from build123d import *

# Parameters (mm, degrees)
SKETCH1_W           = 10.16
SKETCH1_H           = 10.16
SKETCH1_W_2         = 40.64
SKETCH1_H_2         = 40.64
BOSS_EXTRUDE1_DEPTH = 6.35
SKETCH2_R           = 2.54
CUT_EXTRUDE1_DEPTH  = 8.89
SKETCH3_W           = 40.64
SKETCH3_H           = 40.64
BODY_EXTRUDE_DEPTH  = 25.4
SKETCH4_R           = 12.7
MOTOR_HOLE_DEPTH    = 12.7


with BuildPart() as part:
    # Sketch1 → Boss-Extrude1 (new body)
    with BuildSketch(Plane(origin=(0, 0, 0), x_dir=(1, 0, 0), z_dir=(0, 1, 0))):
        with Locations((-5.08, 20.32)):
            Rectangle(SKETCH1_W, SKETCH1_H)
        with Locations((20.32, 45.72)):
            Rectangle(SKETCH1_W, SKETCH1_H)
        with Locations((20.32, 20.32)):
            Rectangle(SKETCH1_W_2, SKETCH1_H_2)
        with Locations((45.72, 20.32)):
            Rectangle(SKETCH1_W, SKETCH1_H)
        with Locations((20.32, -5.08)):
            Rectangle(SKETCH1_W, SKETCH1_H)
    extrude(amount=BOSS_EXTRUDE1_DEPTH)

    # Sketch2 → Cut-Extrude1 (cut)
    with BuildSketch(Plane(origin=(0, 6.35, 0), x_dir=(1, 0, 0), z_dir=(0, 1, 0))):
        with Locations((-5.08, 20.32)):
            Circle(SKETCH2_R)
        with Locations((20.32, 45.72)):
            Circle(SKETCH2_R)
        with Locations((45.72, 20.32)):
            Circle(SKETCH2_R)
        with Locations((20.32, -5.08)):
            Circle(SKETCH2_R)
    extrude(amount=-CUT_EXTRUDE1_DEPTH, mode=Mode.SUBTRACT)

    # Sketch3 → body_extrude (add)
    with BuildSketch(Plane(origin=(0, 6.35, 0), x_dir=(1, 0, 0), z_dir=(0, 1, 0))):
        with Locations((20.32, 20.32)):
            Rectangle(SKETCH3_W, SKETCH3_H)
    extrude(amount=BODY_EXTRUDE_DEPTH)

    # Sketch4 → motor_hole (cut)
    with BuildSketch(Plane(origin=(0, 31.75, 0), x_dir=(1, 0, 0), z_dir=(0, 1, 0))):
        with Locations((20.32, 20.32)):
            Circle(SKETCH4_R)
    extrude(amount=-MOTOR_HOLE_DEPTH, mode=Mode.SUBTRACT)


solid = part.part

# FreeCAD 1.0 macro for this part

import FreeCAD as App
import Part
import Sketcher
from FreeCAD import Vector
Q = App.Units.Quantity


def add_polygon(sketch, points):
    """Adds a closed chain of lines whose ends are joined by coincident constraints."""
    first, n = sketch.GeometryCount, len(points)
    for a, b in zip(points, points[1:] + points[:1]):
        sketch.addGeometry(Part.LineSegment(App.Vector(*a, 0), App.Vector(*b, 0)), False)
    for i in range(n):
        sketch.addConstraint(Sketcher.Constraint("Coincident", first + i, 2, first + (i + 1) % n, 1))

doc = App.newDocument("Part")
body = doc.addObject("PartDesign::Body", "Body")

sketch1 = body.newObject("Sketcher::SketchObject", "Sketch")
sketch1.AttachmentSupport = (doc.getObject("XZ_Plane"), [""])
sketch1.MapMode = "FlatFace"
add_polygon(sketch1, [(-10.16, -25.4), (-10.16, -15.24), (0, -15.24), (0, 0), (15.24, 0), (15.24, 10.16), (25.4, 10.16), (25.4, 0), (40.64, 0), (40.64, -15.24), (50.8, -15.24), (50.8, -25.4), (40.64, -25.4), (40.64, -40.64), (25.4, -40.64), (25.4, -50.8), (15.24, -50.8), (15.24, -40.64), (0, -40.64), (0, -25.4)])
sketch1.addConstraint(Sketcher.Constraint("Vertical", 0))
sketch1.addConstraint(Sketcher.Constraint("Horizontal", 1))
sketch1.addConstraint(Sketcher.Constraint("Vertical", 2))
sketch1.addConstraint(Sketcher.Constraint("Horizontal", 3))
sketch1.addConstraint(Sketcher.Constraint("Vertical", 4))
sketch1.addConstraint(Sketcher.Constraint("Horizontal", 5))
sketch1.addConstraint(Sketcher.Constraint("Vertical", 6))
sketch1.addConstraint(Sketcher.Constraint("Horizontal", 7))
sketch1.addConstraint(Sketcher.Constraint("Vertical", 8))
sketch1.addConstraint(Sketcher.Constraint("Horizontal", 9))
sketch1.addConstraint(Sketcher.Constraint("Vertical", 10))
sketch1.addConstraint(Sketcher.Constraint("Horizontal", 11))
sketch1.addConstraint(Sketcher.Constraint("Vertical", 12))
sketch1.addConstraint(Sketcher.Constraint("Horizontal", 13))
sketch1.addConstraint(Sketcher.Constraint("Vertical", 14))
sketch1.addConstraint(Sketcher.Constraint("Horizontal", 15))
sketch1.addConstraint(Sketcher.Constraint("Vertical", 16))
sketch1.addConstraint(Sketcher.Constraint("Horizontal", 17))
sketch1.addConstraint(Sketcher.Constraint("Vertical", 18))
sketch1.addConstraint(Sketcher.Constraint("Horizontal", 19))
sketch1.addConstraint(Sketcher.Constraint("Coincident", 2, 2, -1, 1))
sketch1.addConstraint(Sketcher.Constraint("PointOnObject", 6, 2, -1))
sketch1.addConstraint(Sketcher.Constraint("PointOnObject", 17, 2, -2))
sketch1.addConstraint(Sketcher.Constraint("Horizontal", 1, 2, 8, 2))
sketch1.addConstraint(Sketcher.Constraint("Horizontal", 13, 2, 16, 2))
sketch1.addConstraint(Sketcher.Constraint("Horizontal", 11, 2, 18, 2))
sketch1.addConstraint(Sketcher.Constraint("Vertical", 8, 2, 11, 2))
sketch1.addConstraint(Sketcher.Constraint("Vertical", 6, 2, 13, 2))
sketch1.addConstraint(Sketcher.Constraint("Vertical", 4, 2, 15, 2))
sketch1.addConstraint(Sketcher.Constraint("Equal", 1, 5))
sketch1.addConstraint(Sketcher.Constraint("Equal", 3, 7))
sketch1.addConstraint(Sketcher.Constraint("Equal", 5, 9))
sketch1.addConstraint(Sketcher.Constraint("Equal", 19, 0))
sketch1.addConstraint(Sketcher.Constraint("Equal", 17, 2))
sketch1.addConstraint(Sketcher.Constraint("Equal", 0, 4))
sketch1.addConstraint(Sketcher.Constraint("Equal", 8, 12))
sketch1.addConstraint(Sketcher.Constraint("Equal", 10, 14))
sketch1.addConstraint(Sketcher.Constraint("DistanceX", 1, 1, 1, 2, Q("0.4 in")))
sketch1.addConstraint(Sketcher.Constraint("DistanceX", 3, 1, 3, 2, Q("0.6 in")))
pad1 = body.newObject("PartDesign::Pad", "Pad")
pad1.Profile = sketch1
pad1.Length = Q("0.25 in")
pad1.Reversed = True

sketch2 = body.newObject("Sketcher::SketchObject", "Sketch001")
sketch2.AttachmentSupport = (doc.getObject("XZ_Plane"), [""])
sketch2.MapMode = "FlatFace"
sketch2.AttachmentOffset = App.Placement(Vector(0, 0, -0.25 * 25.4), App.Rotation())
sketch2.addGeometry(Part.Circle(Vector(-5.08, -20.32, 0), Vector(0, 0, 1), 2.54), False)
sketch2.addGeometry(Part.Circle(Vector(20.32, -45.72, 0), Vector(0, 0, 1), 2.54), False)
sketch2.addGeometry(Part.Circle(Vector(45.72, -20.32, 0), Vector(0, 0, 1), 2.54), False)
sketch2.addGeometry(Part.Circle(Vector(20.32, 5.08, 0), Vector(0, 0, 1), 2.54), False)
sketch2.addConstraint(Sketcher.Constraint("Equal", 0, 1))
sketch2.addConstraint(Sketcher.Constraint("Equal", 1, 2))
sketch2.addConstraint(Sketcher.Constraint("Equal", 2, 3))
sketch2.addConstraint(Sketcher.Constraint("Horizontal", 0, 3, 2, 3))
sketch2.addConstraint(Sketcher.Constraint("Vertical", 1, 3, 3, 3))
sketch2.addConstraint(Sketcher.Constraint("Diameter", 0, Q("0.2 in")))
sketch2.addConstraint(Sketcher.Constraint("DistanceX", 0, 3, 1, 3, Q("1 in")))
sketch2.addConstraint(Sketcher.Constraint("DistanceY", 1, 3, 0, 3, Q("1 in")))
sketch2.addConstraint(Sketcher.Constraint("DistanceX", 1, 3, 2, 3, Q("1 in")))
sketch2.addConstraint(Sketcher.Constraint("DistanceY", 0, 3, 3, 3, Q("1 in")))
sketch2.addConstraint(Sketcher.Constraint("DistanceX", 0, 3, -1, 1, Q("0.2 in")))
sketch2.addConstraint(Sketcher.Constraint("DistanceY", 0, 3, -1, 1, Q("0.8 in")))
pocket1 = body.newObject("PartDesign::Pocket", "Pocket")
pocket1.Profile = sketch2
pocket1.Length = Q("0.35 in")
pocket1.Reversed = True

sketch3 = body.newObject("Sketcher::SketchObject", "Sketch002")
sketch3.AttachmentSupport = (doc.getObject("XZ_Plane"), [""])
sketch3.MapMode = "FlatFace"
sketch3.AttachmentOffset = App.Placement(Vector(0, 0, -0.25 * 25.4), App.Rotation())
add_polygon(sketch3, [(0, -40.64), (0, 0), (40.64, 0), (40.64, -40.64)])
sketch3.addConstraint(Sketcher.Constraint("Vertical", 0))
sketch3.addConstraint(Sketcher.Constraint("Horizontal", 1))
sketch3.addConstraint(Sketcher.Constraint("Vertical", 2))
sketch3.addConstraint(Sketcher.Constraint("Horizontal", 3))
sketch3.addConstraint(Sketcher.Constraint("Coincident", 0, 2, -1, 1))
sketch3.addConstraint(Sketcher.Constraint("Equal", 3, 0))
sketch3.addConstraint(Sketcher.Constraint("DistanceX", 1, 1, 1, 2, Q("1.6 in")))
pad2 = body.newObject("PartDesign::Pad", "Pad001")
pad2.Profile = sketch3
pad2.Length = Q("1 in")
pad2.Reversed = True

sketch4 = body.newObject("Sketcher::SketchObject", "Sketch003")
sketch4.AttachmentSupport = (doc.getObject("XZ_Plane"), [""])
sketch4.MapMode = "FlatFace"
sketch4.AttachmentOffset = App.Placement(Vector(0, 0, -1.25 * 25.4), App.Rotation())
sketch4.addGeometry(Part.Circle(Vector(20.32, -20.32, 0), Vector(0, 0, 1), 12.7), False)
sketch4.addConstraint(Sketcher.Constraint("Diameter", 0, Q("1 in")))
sketch4.addConstraint(Sketcher.Constraint("DistanceX", -1, 1, 0, 3, Q("0.8 in")))
sketch4.addConstraint(Sketcher.Constraint("DistanceY", 0, 3, -1, 1, Q("0.8 in")))
pocket2 = body.newObject("PartDesign::Pocket", "Pocket001")
pocket2.Profile = sketch4
pocket2.Length = Q("0.5 in")
pocket2.Reversed = True

doc.recompute()
